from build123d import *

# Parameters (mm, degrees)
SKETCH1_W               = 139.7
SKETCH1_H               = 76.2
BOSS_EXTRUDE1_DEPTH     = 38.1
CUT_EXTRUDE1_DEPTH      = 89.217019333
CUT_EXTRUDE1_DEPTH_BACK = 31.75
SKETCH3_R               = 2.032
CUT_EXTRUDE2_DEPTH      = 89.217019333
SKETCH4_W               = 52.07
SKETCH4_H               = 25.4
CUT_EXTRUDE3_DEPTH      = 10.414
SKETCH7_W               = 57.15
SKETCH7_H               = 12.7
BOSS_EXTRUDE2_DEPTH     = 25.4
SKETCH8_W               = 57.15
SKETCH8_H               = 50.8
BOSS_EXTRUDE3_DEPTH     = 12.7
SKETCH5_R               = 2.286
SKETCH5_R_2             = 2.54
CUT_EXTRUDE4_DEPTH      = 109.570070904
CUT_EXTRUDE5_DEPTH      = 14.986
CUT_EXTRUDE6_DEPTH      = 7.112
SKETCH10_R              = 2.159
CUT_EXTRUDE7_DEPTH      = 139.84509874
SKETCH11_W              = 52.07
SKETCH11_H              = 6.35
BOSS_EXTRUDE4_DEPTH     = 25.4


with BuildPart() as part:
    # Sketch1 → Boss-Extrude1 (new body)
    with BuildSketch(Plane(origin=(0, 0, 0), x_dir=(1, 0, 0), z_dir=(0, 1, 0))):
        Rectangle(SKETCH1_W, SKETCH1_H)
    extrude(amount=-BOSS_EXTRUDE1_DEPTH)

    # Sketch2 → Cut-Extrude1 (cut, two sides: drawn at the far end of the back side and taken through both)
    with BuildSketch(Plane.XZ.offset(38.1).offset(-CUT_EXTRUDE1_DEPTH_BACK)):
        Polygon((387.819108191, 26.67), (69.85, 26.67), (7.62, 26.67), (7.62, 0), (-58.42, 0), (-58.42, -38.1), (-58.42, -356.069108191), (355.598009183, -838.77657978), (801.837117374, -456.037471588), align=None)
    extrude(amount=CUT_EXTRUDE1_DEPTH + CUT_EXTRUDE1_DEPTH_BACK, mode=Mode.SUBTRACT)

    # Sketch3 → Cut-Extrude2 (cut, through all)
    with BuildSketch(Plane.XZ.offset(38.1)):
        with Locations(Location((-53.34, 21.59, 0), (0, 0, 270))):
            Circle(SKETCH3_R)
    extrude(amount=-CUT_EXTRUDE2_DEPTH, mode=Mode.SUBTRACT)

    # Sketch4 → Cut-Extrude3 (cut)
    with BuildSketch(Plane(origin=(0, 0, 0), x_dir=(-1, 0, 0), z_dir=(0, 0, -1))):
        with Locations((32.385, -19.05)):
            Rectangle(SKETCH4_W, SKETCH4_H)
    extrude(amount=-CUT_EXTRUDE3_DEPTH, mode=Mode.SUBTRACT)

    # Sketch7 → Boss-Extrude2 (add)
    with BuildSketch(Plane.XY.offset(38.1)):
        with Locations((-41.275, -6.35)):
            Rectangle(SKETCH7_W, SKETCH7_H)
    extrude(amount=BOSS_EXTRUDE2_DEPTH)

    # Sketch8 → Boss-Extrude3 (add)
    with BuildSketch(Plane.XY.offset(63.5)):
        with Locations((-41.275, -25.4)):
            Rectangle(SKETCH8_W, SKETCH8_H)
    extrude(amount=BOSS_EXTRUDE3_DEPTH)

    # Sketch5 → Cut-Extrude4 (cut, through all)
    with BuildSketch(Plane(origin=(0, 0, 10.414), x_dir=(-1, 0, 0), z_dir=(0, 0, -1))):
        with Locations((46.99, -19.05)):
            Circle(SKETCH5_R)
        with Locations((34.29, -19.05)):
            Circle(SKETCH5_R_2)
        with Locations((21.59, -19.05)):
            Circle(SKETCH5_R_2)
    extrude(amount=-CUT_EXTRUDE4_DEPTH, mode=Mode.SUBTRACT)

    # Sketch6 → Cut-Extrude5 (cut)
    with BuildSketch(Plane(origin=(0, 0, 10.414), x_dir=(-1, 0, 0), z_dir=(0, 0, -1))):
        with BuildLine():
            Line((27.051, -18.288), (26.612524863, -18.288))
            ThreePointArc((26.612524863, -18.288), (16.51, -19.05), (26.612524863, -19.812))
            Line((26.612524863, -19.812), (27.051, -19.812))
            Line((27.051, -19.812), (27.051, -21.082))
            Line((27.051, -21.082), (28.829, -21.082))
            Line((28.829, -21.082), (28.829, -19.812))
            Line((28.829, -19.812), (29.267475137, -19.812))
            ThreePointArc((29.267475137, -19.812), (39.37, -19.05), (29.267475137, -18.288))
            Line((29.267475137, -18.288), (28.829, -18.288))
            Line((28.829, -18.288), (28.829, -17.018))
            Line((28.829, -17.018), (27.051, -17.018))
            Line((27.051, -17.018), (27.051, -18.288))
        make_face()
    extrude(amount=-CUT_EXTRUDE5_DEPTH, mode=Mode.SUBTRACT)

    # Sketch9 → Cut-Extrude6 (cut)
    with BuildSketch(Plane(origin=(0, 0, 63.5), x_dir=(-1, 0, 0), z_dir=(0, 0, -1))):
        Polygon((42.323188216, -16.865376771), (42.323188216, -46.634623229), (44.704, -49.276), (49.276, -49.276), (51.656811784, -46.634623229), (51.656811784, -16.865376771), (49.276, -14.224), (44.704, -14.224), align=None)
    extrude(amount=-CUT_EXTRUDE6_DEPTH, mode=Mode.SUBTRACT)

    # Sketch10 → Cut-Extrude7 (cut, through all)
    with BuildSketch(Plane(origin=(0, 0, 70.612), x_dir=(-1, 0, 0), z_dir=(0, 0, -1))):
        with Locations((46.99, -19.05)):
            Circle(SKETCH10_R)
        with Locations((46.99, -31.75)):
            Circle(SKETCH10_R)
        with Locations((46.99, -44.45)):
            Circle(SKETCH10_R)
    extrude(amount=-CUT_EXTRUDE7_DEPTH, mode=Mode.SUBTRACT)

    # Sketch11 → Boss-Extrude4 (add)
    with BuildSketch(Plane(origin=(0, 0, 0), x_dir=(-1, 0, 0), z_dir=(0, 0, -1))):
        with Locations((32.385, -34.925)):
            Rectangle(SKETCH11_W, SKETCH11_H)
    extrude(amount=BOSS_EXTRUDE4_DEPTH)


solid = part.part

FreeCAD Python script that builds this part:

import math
import FreeCAD as App
import Part
import Sketcher
Q = App.Units.Quantity


def add_polygon(sketch, points):
    """Adds a closed chain of lines whose ends are joined by coincident constraints."""
    first, n = sketch.GeometryCount, len(points)
    for a, b in zip(points, points[1:] + points[:1]):
        sketch.addGeometry(Part.LineSegment(App.Vector(*a, 0), App.Vector(*b, 0)), False)
    for i in range(n):
        sketch.addConstraint(Sketcher.Constraint("Coincident", first + i, 2, first + (i + 1) % n, 1))

doc = App.newDocument("Part")
body = doc.addObject("PartDesign::Body", "Body")

# Sketch on XZ plane
sketch1 = body.newObject("Sketcher::SketchObject", "Sketch")
sketch1.AttachmentSupport = (doc.getObject("XZ_Plane"), [""])
sketch1.MapMode = "FlatFace"
add_polygon(sketch1, [(-70, -38), (-70, 38), (70, 38), (70, -38)])  # lines 0-3
sketch1.addConstraint(Sketcher.Constraint("Vertical", 0))
sketch1.addConstraint(Sketcher.Constraint("Horizontal", 1))
sketch1.addConstraint(Sketcher.Constraint("Vertical", 2))
sketch1.addConstraint(Sketcher.Constraint("Horizontal", 3))
sketch1.addConstraint(Sketcher.Constraint("Symmetric", 0, 2, 2, 2, -1, 1))
sketch1.addConstraint(Sketcher.Constraint("DistanceY", 0, 1, 0, 2, Q("3 in")))
sketch1.addConstraint(Sketcher.Constraint("DistanceX", 1, 1, 1, 2, Q("5.5 in")))
pad1 = body.newObject("PartDesign::Pad", "Pad")
pad1.Profile = sketch1
pad1.Length = Q("1.5 in")

# Sketch on XZ plane
sketch2 = body.newObject("Sketcher::SketchObject", "Sketch001")
sketch2.AttachmentSupport = (doc.getObject("XZ_Plane"), [""])
sketch2.MapMode = "FlatFace"
sketch2.AttachmentOffset = App.Placement(App.Vector(0, 0, 1.5 * 25.4), App.Rotation())
add_polygon(sketch2, [(388, 27), (8, 27), (8, 0), (-58, 0), (-58, -356), (356, -839), (802, -456)])  # lines 0-6
sketch2.addConstraint(Sketcher.Constraint("Horizontal", 0))
sketch2.addConstraint(Sketcher.Constraint("Vertical", 1))
sketch2.addConstraint(Sketcher.Constraint("Horizontal", 2))
sketch2.addConstraint(Sketcher.Constraint("Vertical", 3))
sketch2.addConstraint(Sketcher.Constraint("PointOnObject", 1, 2, -1))
sketch2.addConstraint(Sketcher.Constraint("Perpendicular", 4, 5))
sketch2.addConstraint(Sketcher.Constraint("Perpendicular", 5, 6))
sketch2.addConstraint(Sketcher.Constraint("Equal", 4, 6))
sketch2.addConstraint(Sketcher.Constraint("DistanceX", 2, 2, 2, 1, Q("2.6 in")))
sketch2.addConstraint(Sketcher.Constraint("DistanceY", 1, 2, 1, 1, Q("1.05 in")))
sketch2.addConstraint(Sketcher.Constraint("DistanceX", -1, 1, 0, 2, Q("0.3 in")))
sketch2.addConstraint(Sketcher.Constraint("DistanceY", 4, 2, -1, 1, Q("33.0227 in")))
sketch2.addConstraint(Sketcher.Constraint("DistanceX", 0, 2, 0, 1, 380.199108))
sketch2.addConstraint(Sketcher.Constraint("DistanceY", 3, 2, 3, 1, 356.069108))
pocket1 = body.newObject("PartDesign::Pocket", "Pocket")
pocket1.Profile = sketch2
pocket1.Type = "TwoLengths"
pocket1.Length = 89.217019
pocket1.Length2 = Q("1.25 in")
pocket1.Reversed = True

# Sketch on XZ plane
sketch3 = body.newObject("Sketcher::SketchObject", "Sketch002")
sketch3.AttachmentSupport = (doc.getObject("XZ_Plane"), [""])
sketch3.MapMode = "FlatFace"
sketch3.AttachmentOffset = App.Placement(App.Vector(0, 0, 1.5 * 25.4), App.Rotation())
sketch3.addGeometry(Part.Circle(App.Vector(-53.3, 21.6, 0), App.Vector(0, 0, 1), 2), False)
sketch3.addConstraint(Sketcher.Constraint("Diameter", 0, Q("0.16 in")))
sketch3.addConstraint(Sketcher.Constraint("DistanceX", 0, 3, -1, 1, Q("2.1 in")))
sketch3.addConstraint(Sketcher.Constraint("DistanceY", -1, 1, 0, 3, Q("0.85 in")))
pocket2 = body.newObject("PartDesign::Pocket", "Pocket001")
pocket2.Profile = sketch3
pocket2.Type = "ThroughAll"

# Sketch on XY plane
sketch4 = body.newObject("Sketcher::SketchObject", "Sketch003")
sketch4.AttachmentSupport = (doc.getObject("XY_Plane"), [""])
sketch4.MapMode = "FlatFace"
add_polygon(sketch4, [(-6, -6), (-6, -32), (-58, -32), (-58, -6)])  # lines 0-3
sketch4.addConstraint(Sketcher.Constraint("Vertical", 0))
sketch4.addConstraint(Sketcher.Constraint("Horizontal", 1))
sketch4.addConstraint(Sketcher.Constraint("Vertical", 2))
sketch4.addConstraint(Sketcher.Constraint("Horizontal", 3))
sketch4.addConstraint(Sketcher.Constraint("DistanceY", 0, 2, 0, 1, Q("1 in")))
sketch4.addConstraint(Sketcher.Constraint("DistanceX", 1, 2, 1, 1, Q("2.05 in")))
sketch4.addConstraint(Sketcher.Constraint("DistanceX", 1, 2, -1, 1, Q("2.3 in")))
sketch4.addConstraint(Sketcher.Constraint("DistanceY", 0, 2, -1, 1, Q("1.25 in")))
pocket3 = body.newObject("PartDesign::Pocket", "Pocket002")
pocket3.Profile = sketch4
pocket3.Length = Q("0.41 in")
pocket3.Reversed = True

# Sketch on XY plane
sketch5 = body.newObject("Sketcher::SketchObject", "Sketch004")
sketch5.AttachmentSupport = (doc.getObject("XY_Plane"), [""])
sketch5.MapMode = "FlatFace"
sketch5.AttachmentOffset = App.Placement(App.Vector(0, 0, 1.5 * 25.4), App.Rotation())
add_polygon(sketch5, [(-70, 0), (-70, -13), (-13, -13), (-13, 0)])  # lines 0-3
sketch5.addConstraint(Sketcher.Constraint("Vertical", 0))
sketch5.addConstraint(Sketcher.Constraint("Horizontal", 1))
sketch5.addConstraint(Sketcher.Constraint("Vertical", 2))
sketch5.addConstraint(Sketcher.Constraint("Horizontal", 3))
sketch5.addConstraint(Sketcher.Constraint("PointOnObject", 2, 2, -1))
sketch5.addConstraint(Sketcher.Constraint("DistanceY", 0, 2, 0, 1, Q("0.5 in")))
sketch5.addConstraint(Sketcher.Constraint("DistanceX", 1, 1, 1, 2, Q("2.25 in")))
sketch5.addConstraint(Sketcher.Constraint("DistanceX", 1, 2, -1, 1, Q("0.5 in")))
pad2 = body.newObject("PartDesign::Pad", "Pad001")
pad2.Profile = sketch5
pad2.Length = Q("1 in")

# Sketch on XY plane
sketch6 = body.newObject("Sketcher::SketchObject", "Sketch005")
sketch6.AttachmentSupport = (doc.getObject("XY_Plane"), [""])
sketch6.MapMode = "FlatFace"
sketch6.AttachmentOffset = App.Placement(App.Vector(0, 0, 2.5 * 25.4), App.Rotation())
add_polygon(sketch6, [(-70, 0), (-70, -51), (-13, -51), (-13, 0)])  # lines 0-3
sketch6.addConstraint(Sketcher.Constraint("Vertical", 0))
sketch6.addConstraint(Sketcher.Constraint("Horizontal", 1))
sketch6.addConstraint(Sketcher.Constraint("Vertical", 2))
sketch6.addConstraint(Sketcher.Constraint("Horizontal", 3))
sketch6.addConstraint(Sketcher.Constraint("PointOnObject", 2, 2, -1))
sketch6.addConstraint(Sketcher.Constraint("DistanceY", 0, 2, 0, 1, Q("2 in")))
sketch6.addConstraint(Sketcher.Constraint("DistanceX", 1, 1, 1, 2, Q("2.25 in")))
sketch6.addConstraint(Sketcher.Constraint("DistanceX", 1, 2, -1, 1, Q("0.5 in")))
pad3 = body.newObject("PartDesign::Pad", "Pad002")
pad3.Profile = sketch6
pad3.Length = Q("0.5 in")

# Sketch on XY plane
sketch7 = body.newObject("Sketcher::SketchObject", "Sketch006")
sketch7.AttachmentSupport = (doc.getObject("XY_Plane"), [""])
sketch7.MapMode = "FlatFace"
sketch7.AttachmentOffset = App.Placement(App.Vector(0, 0, 0.41 * 25.4), App.Rotation())
sketch7.addGeometry(Part.Circle(App.Vector(-47, -19.1, 0), App.Vector(0, 0, 1), 2.3), False)
sketch7.addGeometry(Part.Circle(App.Vector(-34.3, -19.1, 0), App.Vector(0, 0, 1), 2.5), False)
sketch7.addGeometry(Part.Circle(App.Vector(-21.6, -19.1, 0), App.Vector(0, 0, 1), 2.5), False)
sketch7.addConstraint(Sketcher.Constraint("Equal", 1, 2))
sketch7.addConstraint(Sketcher.Constraint("Horizontal", 0, 3, 1, 3))
sketch7.addConstraint(Sketcher.Constraint("Horizontal", 1, 3, 2, 3))
sketch7.addConstraint(Sketcher.Constraint("Diameter", 1, Q("0.2 in")))
sketch7.addConstraint(Sketcher.Constraint("Diameter", 0, Q("0.18 in")))
sketch7.addConstraint(Sketcher.Constraint("DistanceX", 0, 3, 2, 3, Q("1 in")))
sketch7.addConstraint(Sketcher.Constraint("DistanceX", 0, 3, 1, 3, Q("0.5 in")))
sketch7.addConstraint(Sketcher.Constraint("DistanceX", 0, 3, -1, 1, Q("1.85 in")))
sketch7.addConstraint(Sketcher.Constraint("DistanceY", 0, 3, -1, 1, Q("0.75 in")))
pocket4 = body.newObject("PartDesign::Pocket", "Pocket003")
pocket4.Profile = sketch7
pocket4.Type = "ThroughAll"
pocket4.Reversed = True

# Sketch on XY plane
sketch8 = body.newObject("Sketcher::SketchObject", "Sketch007")
sketch8.AttachmentSupport = (doc.getObject("XY_Plane"), [""])
sketch8.MapMode = "FlatFace"
sketch8.AttachmentOffset = App.Placement(App.Vector(0, 0, 0.41 * 25.4), App.Rotation())
sketch8.addGeometry(Part.LineSegment(App.Vector(-27.05, -18.29, 0), App.Vector(-26.61, -18.29, 0)), False)
sketch8.addGeometry(Part.ArcOfCircle(Part.Circle(App.Vector(-21.59, -19.05, 0), App.Vector(0, 0, 1), 5.08), math.radians(-171), math.radians(171)), False)
sketch8.addGeometry(Part.LineSegment(App.Vector(-26.61, -19.81, 0), App.Vector(-27.05, -19.81, 0)), False)
sketch8.addGeometry(Part.LineSegment(App.Vector(-27.05, -19.81, 0), App.Vector(-27.05, -21.08, 0)), False)
sketch8.addGeometry(Part.LineSegment(App.Vector(-27.05, -21.08, 0), App.Vector(-28.83, -21.08, 0)), False)
sketch8.addGeometry(Part.LineSegment(App.Vector(-28.83, -21.08, 0), App.Vector(-28.83, -19.81, 0)), False)
sketch8.addGeometry(Part.LineSegment(App.Vector(-28.83, -19.81, 0), App.Vector(-29.27, -19.81, 0)), False)
sketch8.addGeometry(Part.ArcOfCircle(Part.Circle(App.Vector(-34.29, -19.05, 0), App.Vector(0, 0, 1), 5.08), math.radians(9), math.radians(351)), False)
sketch8.addGeometry(Part.LineSegment(App.Vector(-29.27, -18.29, 0), App.Vector(-28.83, -18.29, 0)), False)
sketch8.addGeometry(Part.LineSegment(App.Vector(-28.83, -18.29, 0), App.Vector(-28.83, -17.02, 0)), False)
sketch8.addGeometry(Part.LineSegment(App.Vector(-28.83, -17.02, 0), App.Vector(-27.05, -17.02, 0)), False)
sketch8.addGeometry(Part.LineSegment(App.Vector(-27.05, -17.02, 0), App.Vector(-27.05, -18.29, 0)), False)
sketch8.addConstraint(Sketcher.Constraint("Coincident", 0, 2, 1, 2))
sketch8.addConstraint(Sketcher.Constraint("Coincident", 1, 1, 2, 1))
sketch8.addConstraint(Sketcher.Constraint("Coincident", 2, 2, 3, 1))
sketch8.addConstraint(Sketcher.Constraint("Coincident", 3, 2, 4, 1))
sketch8.addConstraint(Sketcher.Constraint("Coincident", 4, 2, 5, 1))
sketch8.addConstraint(Sketcher.Constraint("Coincident", 5, 2, 6, 1))
sketch8.addConstraint(Sketcher.Constraint("Coincident", 6, 2, 7, 2))
sketch8.addConstraint(Sketcher.Constraint("Coincident", 7, 1, 8, 1))
sketch8.addConstraint(Sketcher.Constraint("Coincident", 8, 2, 9, 1))
sketch8.addConstraint(Sketcher.Constraint("Coincident", 9, 2, 10, 1))
sketch8.addConstraint(Sketcher.Constraint("Coincident", 10, 2, 11, 1))
sketch8.addConstraint(Sketcher.Constraint("Coincident", 11, 2, 0, 1))
sketch8.addConstraint(Sketcher.Constraint("Horizontal", 0))
sketch8.addConstraint(Sketcher.Constraint("Horizontal", 2))
sketch8.addConstraint(Sketcher.Constraint("Vertical", 3))
sketch8.addConstraint(Sketcher.Constraint("Horizontal", 4))
sketch8.addConstraint(Sketcher.Constraint("Vertical", 5))
sketch8.addConstraint(Sketcher.Constraint("Horizontal", 6))
sketch8.addConstraint(Sketcher.Constraint("Horizontal", 8))
sketch8.addConstraint(Sketcher.Constraint("Vertical", 9))
sketch8.addConstraint(Sketcher.Constraint("Horizontal", 10))
sketch8.addConstraint(Sketcher.Constraint("Vertical", 11))
sketch8.addConstraint(Sketcher.Constraint("Equal", 1, 7))
sketch8.addConstraint(Sketcher.Constraint("Horizontal", 1, 3, 7, 3))
sketch8.addConstraint(Sketcher.Constraint("Horizontal", 2, 2, 5, 2))
sketch8.addConstraint(Sketcher.Constraint("Horizontal", 0, 2, 7, 1))
sketch8.addConstraint(Sketcher.Constraint("Vertical", 0, 2, 1, 1))
sketch8.addConstraint(Sketcher.Constraint("Vertical", 5, 2, 8, 2))
sketch8.addConstraint(Sketcher.Constraint("Vertical", 3, 2, 10, 2))
sketch8.addConstraint(Sketcher.Constraint("Equal", 2, 6))
sketch8.addConstraint(Sketcher.Constraint("Equal", 5, 9))
sketch8.addConstraint(Sketcher.Constraint("Radius", 1, Q("0.2 in")))
sketch8.addConstraint(Sketcher.Constraint("DistanceX", 4, 2, 4, 1, Q("0.07 in")))
sketch8.addConstraint(Sketcher.Constraint("DistanceY", 3, 2, 3, 1, Q("0.05 in")))
sketch8.addConstraint(Sketcher.Constraint("DistanceX", 7, 3, 1, 3, Q("0.5 in")))
sketch8.addConstraint(Sketcher.Constraint("DistanceX", 1, 3, -1, 1, Q("0.85 in")))
sketch8.addConstraint(Sketcher.Constraint("DistanceY", 1, 3, -1, 1, Q("0.75 in")))
sketch8.addConstraint(Sketcher.Constraint("DistanceY", 0, 2, -1, 1, Q("0.72 in")))
pocket5 = body.newObject("PartDesign::Pocket", "Pocket004")
pocket5.Profile = sketch8
pocket5.Length = Q("0.59 in")
pocket5.Reversed = True

# Sketch on XY plane
sketch9 = body.newObject("Sketcher::SketchObject", "Sketch008")
sketch9.AttachmentSupport = (doc.getObject("XY_Plane"), [""])
sketch9.MapMode = "FlatFace"
sketch9.AttachmentOffset = App.Placement(App.Vector(0, 0, 2.5 * 25.4), App.Rotation())
add_polygon(sketch9, [(-42.3, -16.9), (-42.3, -46.6), (-44.7, -49.3), (-49.3, -49.3), (-51.7, -46.6), (-51.7, -16.9), (-49.3, -14.2), (-44.7, -14.2)])  # lines 0-7
sketch9.addConstraint(Sketcher.Constraint("Vertical", 0))
sketch9.addConstraint(Sketcher.Constraint("Horizontal", 2))
sketch9.addConstraint(Sketcher.Constraint("Vertical", 4))
sketch9.addConstraint(Sketcher.Constraint("Horizontal", 6))
sketch9.addConstraint(Sketcher.Constraint("Parallel", 1, 5))
sketch9.addConstraint(Sketcher.Constraint("Parallel", 3, 7))
sketch9.addConstraint(Sketcher.Constraint("Horizontal", 0, 2, 3, 2))
sketch9.addConstraint(Sketcher.Constraint("Horizontal", 4, 2, 7, 2))
sketch9.addConstraint(Sketcher.Constraint("Vertical", 2, 2, 5, 2))
sketch9.addConstraint(Sketcher.Constraint("Vertical", 1, 2, 6, 2))
sketch9.addConstraint(Sketcher.Constraint("DistanceX", 2, 2, 2, 1, Q("0.18 in")))
sketch9.addConstraint(Sketcher.Constraint("Distance", 1, Q("0.14 in")))
sketch9.addConstraint(Sketcher.Constraint("DistanceX", 1, 2, -1, 1, Q("1.76 in")))
sketch9.addConstraint(Sketcher.Constraint("DistanceY", 1, 2, -1, 1, Q("1.94 in")))
sketch9.addConstraint(Sketcher.Constraint("DistanceY", 5, 2, -1, 1, Q("0.56 in")))
sketch9.addConstraint(Sketcher.Constraint("Angle", 1, Q("-132.03 deg")))
pocket6 = body.newObject("PartDesign::Pocket", "Pocket005")
pocket6.Profile = sketch9
pocket6.Length = Q("0.28 in")
pocket6.Reversed = True

# Sketch on XY plane
sketch10 = body.newObject("Sketcher::SketchObject", "Sketch009")
sketch10.AttachmentSupport = (doc.getObject("XY_Plane"), [""])
sketch10.MapMode = "FlatFace"
sketch10.AttachmentOffset = App.Placement(App.Vector(0, 0, 2.78 * 25.4), App.Rotation())
sketch10.addGeometry(Part.Circle(App.Vector(-47, -19.1, 0), App.Vector(0, 0, 1), 2.2), False)
sketch10.addGeometry(Part.Circle(App.Vector(-47, -31.8, 0), App.Vector(0, 0, 1), 2.2), False)
sketch10.addGeometry(Part.Circle(App.Vector(-47, -44.5, 0), App.Vector(0, 0, 1), 2.2), False)
sketch10.addConstraint(Sketcher.Constraint("Equal", 0, 1))
sketch10.addConstraint(Sketcher.Constraint("Equal", 1, 2))
sketch10.addConstraint(Sketcher.Constraint("Vertical", 0, 3, 1, 3))
sketch10.addConstraint(Sketcher.Constraint("Vertical", 1, 3, 2, 3))
sketch10.addConstraint(Sketcher.Constraint("Diameter", 0, Q("0.17 in")))
sketch10.addConstraint(Sketcher.Constraint("DistanceY", 2, 3, 0, 3, Q("1 in")))
sketch10.addConstraint(Sketcher.Constraint("DistanceY", 1, 3, 0, 3, Q("0.5 in")))
sketch10.addConstraint(Sketcher.Constraint("DistanceX", 0, 3, -1, 1, Q("1.85 in")))
sketch10.addConstraint(Sketcher.Constraint("DistanceY", 0, 3, -1, 1, Q("0.75 in")))
pocket7 = body.newObject("PartDesign::Pocket", "Pocket006")
pocket7.Profile = sketch10
pocket7.Type = "ThroughAll"
pocket7.Reversed = True

# Sketch on XY plane
sketch11 = body.newObject("Sketcher::SketchObject", "Sketch010")
sketch11.AttachmentSupport = (doc.getObject("XY_Plane"), [""])
sketch11.MapMode = "FlatFace"
add_polygon(sketch11, [(-6, -32), (-6, -38), (-58, -38), (-58, -32)])  # lines 0-3
sketch11.addConstraint(Sketcher.Constraint("Vertical", 0))
sketch11.addConstraint(Sketcher.Constraint("Horizontal", 1))
sketch11.addConstraint(Sketcher.Constraint("Vertical", 2))
sketch11.addConstraint(Sketcher.Constraint("Horizontal", 3))
sketch11.addConstraint(Sketcher.Constraint("DistanceX", 1, 2, 1, 1, Q("2.05 in")))
sketch11.addConstraint(Sketcher.Constraint("DistanceY", 0, 2, 0, 1, Q("0.25 in")))
sketch11.addConstraint(Sketcher.Constraint("DistanceY", 0, 2, -1, 1, Q("1.5 in")))
sketch11.addConstraint(Sketcher.Constraint("DistanceX", 1, 2, -1, 1, Q("2.3 in")))
pad4 = body.newObject("PartDesign::Pad", "Pad003")
pad4.Profile = sketch11
pad4.Length = Q("1 in")
pad4.Reversed = True

doc.recompute()
